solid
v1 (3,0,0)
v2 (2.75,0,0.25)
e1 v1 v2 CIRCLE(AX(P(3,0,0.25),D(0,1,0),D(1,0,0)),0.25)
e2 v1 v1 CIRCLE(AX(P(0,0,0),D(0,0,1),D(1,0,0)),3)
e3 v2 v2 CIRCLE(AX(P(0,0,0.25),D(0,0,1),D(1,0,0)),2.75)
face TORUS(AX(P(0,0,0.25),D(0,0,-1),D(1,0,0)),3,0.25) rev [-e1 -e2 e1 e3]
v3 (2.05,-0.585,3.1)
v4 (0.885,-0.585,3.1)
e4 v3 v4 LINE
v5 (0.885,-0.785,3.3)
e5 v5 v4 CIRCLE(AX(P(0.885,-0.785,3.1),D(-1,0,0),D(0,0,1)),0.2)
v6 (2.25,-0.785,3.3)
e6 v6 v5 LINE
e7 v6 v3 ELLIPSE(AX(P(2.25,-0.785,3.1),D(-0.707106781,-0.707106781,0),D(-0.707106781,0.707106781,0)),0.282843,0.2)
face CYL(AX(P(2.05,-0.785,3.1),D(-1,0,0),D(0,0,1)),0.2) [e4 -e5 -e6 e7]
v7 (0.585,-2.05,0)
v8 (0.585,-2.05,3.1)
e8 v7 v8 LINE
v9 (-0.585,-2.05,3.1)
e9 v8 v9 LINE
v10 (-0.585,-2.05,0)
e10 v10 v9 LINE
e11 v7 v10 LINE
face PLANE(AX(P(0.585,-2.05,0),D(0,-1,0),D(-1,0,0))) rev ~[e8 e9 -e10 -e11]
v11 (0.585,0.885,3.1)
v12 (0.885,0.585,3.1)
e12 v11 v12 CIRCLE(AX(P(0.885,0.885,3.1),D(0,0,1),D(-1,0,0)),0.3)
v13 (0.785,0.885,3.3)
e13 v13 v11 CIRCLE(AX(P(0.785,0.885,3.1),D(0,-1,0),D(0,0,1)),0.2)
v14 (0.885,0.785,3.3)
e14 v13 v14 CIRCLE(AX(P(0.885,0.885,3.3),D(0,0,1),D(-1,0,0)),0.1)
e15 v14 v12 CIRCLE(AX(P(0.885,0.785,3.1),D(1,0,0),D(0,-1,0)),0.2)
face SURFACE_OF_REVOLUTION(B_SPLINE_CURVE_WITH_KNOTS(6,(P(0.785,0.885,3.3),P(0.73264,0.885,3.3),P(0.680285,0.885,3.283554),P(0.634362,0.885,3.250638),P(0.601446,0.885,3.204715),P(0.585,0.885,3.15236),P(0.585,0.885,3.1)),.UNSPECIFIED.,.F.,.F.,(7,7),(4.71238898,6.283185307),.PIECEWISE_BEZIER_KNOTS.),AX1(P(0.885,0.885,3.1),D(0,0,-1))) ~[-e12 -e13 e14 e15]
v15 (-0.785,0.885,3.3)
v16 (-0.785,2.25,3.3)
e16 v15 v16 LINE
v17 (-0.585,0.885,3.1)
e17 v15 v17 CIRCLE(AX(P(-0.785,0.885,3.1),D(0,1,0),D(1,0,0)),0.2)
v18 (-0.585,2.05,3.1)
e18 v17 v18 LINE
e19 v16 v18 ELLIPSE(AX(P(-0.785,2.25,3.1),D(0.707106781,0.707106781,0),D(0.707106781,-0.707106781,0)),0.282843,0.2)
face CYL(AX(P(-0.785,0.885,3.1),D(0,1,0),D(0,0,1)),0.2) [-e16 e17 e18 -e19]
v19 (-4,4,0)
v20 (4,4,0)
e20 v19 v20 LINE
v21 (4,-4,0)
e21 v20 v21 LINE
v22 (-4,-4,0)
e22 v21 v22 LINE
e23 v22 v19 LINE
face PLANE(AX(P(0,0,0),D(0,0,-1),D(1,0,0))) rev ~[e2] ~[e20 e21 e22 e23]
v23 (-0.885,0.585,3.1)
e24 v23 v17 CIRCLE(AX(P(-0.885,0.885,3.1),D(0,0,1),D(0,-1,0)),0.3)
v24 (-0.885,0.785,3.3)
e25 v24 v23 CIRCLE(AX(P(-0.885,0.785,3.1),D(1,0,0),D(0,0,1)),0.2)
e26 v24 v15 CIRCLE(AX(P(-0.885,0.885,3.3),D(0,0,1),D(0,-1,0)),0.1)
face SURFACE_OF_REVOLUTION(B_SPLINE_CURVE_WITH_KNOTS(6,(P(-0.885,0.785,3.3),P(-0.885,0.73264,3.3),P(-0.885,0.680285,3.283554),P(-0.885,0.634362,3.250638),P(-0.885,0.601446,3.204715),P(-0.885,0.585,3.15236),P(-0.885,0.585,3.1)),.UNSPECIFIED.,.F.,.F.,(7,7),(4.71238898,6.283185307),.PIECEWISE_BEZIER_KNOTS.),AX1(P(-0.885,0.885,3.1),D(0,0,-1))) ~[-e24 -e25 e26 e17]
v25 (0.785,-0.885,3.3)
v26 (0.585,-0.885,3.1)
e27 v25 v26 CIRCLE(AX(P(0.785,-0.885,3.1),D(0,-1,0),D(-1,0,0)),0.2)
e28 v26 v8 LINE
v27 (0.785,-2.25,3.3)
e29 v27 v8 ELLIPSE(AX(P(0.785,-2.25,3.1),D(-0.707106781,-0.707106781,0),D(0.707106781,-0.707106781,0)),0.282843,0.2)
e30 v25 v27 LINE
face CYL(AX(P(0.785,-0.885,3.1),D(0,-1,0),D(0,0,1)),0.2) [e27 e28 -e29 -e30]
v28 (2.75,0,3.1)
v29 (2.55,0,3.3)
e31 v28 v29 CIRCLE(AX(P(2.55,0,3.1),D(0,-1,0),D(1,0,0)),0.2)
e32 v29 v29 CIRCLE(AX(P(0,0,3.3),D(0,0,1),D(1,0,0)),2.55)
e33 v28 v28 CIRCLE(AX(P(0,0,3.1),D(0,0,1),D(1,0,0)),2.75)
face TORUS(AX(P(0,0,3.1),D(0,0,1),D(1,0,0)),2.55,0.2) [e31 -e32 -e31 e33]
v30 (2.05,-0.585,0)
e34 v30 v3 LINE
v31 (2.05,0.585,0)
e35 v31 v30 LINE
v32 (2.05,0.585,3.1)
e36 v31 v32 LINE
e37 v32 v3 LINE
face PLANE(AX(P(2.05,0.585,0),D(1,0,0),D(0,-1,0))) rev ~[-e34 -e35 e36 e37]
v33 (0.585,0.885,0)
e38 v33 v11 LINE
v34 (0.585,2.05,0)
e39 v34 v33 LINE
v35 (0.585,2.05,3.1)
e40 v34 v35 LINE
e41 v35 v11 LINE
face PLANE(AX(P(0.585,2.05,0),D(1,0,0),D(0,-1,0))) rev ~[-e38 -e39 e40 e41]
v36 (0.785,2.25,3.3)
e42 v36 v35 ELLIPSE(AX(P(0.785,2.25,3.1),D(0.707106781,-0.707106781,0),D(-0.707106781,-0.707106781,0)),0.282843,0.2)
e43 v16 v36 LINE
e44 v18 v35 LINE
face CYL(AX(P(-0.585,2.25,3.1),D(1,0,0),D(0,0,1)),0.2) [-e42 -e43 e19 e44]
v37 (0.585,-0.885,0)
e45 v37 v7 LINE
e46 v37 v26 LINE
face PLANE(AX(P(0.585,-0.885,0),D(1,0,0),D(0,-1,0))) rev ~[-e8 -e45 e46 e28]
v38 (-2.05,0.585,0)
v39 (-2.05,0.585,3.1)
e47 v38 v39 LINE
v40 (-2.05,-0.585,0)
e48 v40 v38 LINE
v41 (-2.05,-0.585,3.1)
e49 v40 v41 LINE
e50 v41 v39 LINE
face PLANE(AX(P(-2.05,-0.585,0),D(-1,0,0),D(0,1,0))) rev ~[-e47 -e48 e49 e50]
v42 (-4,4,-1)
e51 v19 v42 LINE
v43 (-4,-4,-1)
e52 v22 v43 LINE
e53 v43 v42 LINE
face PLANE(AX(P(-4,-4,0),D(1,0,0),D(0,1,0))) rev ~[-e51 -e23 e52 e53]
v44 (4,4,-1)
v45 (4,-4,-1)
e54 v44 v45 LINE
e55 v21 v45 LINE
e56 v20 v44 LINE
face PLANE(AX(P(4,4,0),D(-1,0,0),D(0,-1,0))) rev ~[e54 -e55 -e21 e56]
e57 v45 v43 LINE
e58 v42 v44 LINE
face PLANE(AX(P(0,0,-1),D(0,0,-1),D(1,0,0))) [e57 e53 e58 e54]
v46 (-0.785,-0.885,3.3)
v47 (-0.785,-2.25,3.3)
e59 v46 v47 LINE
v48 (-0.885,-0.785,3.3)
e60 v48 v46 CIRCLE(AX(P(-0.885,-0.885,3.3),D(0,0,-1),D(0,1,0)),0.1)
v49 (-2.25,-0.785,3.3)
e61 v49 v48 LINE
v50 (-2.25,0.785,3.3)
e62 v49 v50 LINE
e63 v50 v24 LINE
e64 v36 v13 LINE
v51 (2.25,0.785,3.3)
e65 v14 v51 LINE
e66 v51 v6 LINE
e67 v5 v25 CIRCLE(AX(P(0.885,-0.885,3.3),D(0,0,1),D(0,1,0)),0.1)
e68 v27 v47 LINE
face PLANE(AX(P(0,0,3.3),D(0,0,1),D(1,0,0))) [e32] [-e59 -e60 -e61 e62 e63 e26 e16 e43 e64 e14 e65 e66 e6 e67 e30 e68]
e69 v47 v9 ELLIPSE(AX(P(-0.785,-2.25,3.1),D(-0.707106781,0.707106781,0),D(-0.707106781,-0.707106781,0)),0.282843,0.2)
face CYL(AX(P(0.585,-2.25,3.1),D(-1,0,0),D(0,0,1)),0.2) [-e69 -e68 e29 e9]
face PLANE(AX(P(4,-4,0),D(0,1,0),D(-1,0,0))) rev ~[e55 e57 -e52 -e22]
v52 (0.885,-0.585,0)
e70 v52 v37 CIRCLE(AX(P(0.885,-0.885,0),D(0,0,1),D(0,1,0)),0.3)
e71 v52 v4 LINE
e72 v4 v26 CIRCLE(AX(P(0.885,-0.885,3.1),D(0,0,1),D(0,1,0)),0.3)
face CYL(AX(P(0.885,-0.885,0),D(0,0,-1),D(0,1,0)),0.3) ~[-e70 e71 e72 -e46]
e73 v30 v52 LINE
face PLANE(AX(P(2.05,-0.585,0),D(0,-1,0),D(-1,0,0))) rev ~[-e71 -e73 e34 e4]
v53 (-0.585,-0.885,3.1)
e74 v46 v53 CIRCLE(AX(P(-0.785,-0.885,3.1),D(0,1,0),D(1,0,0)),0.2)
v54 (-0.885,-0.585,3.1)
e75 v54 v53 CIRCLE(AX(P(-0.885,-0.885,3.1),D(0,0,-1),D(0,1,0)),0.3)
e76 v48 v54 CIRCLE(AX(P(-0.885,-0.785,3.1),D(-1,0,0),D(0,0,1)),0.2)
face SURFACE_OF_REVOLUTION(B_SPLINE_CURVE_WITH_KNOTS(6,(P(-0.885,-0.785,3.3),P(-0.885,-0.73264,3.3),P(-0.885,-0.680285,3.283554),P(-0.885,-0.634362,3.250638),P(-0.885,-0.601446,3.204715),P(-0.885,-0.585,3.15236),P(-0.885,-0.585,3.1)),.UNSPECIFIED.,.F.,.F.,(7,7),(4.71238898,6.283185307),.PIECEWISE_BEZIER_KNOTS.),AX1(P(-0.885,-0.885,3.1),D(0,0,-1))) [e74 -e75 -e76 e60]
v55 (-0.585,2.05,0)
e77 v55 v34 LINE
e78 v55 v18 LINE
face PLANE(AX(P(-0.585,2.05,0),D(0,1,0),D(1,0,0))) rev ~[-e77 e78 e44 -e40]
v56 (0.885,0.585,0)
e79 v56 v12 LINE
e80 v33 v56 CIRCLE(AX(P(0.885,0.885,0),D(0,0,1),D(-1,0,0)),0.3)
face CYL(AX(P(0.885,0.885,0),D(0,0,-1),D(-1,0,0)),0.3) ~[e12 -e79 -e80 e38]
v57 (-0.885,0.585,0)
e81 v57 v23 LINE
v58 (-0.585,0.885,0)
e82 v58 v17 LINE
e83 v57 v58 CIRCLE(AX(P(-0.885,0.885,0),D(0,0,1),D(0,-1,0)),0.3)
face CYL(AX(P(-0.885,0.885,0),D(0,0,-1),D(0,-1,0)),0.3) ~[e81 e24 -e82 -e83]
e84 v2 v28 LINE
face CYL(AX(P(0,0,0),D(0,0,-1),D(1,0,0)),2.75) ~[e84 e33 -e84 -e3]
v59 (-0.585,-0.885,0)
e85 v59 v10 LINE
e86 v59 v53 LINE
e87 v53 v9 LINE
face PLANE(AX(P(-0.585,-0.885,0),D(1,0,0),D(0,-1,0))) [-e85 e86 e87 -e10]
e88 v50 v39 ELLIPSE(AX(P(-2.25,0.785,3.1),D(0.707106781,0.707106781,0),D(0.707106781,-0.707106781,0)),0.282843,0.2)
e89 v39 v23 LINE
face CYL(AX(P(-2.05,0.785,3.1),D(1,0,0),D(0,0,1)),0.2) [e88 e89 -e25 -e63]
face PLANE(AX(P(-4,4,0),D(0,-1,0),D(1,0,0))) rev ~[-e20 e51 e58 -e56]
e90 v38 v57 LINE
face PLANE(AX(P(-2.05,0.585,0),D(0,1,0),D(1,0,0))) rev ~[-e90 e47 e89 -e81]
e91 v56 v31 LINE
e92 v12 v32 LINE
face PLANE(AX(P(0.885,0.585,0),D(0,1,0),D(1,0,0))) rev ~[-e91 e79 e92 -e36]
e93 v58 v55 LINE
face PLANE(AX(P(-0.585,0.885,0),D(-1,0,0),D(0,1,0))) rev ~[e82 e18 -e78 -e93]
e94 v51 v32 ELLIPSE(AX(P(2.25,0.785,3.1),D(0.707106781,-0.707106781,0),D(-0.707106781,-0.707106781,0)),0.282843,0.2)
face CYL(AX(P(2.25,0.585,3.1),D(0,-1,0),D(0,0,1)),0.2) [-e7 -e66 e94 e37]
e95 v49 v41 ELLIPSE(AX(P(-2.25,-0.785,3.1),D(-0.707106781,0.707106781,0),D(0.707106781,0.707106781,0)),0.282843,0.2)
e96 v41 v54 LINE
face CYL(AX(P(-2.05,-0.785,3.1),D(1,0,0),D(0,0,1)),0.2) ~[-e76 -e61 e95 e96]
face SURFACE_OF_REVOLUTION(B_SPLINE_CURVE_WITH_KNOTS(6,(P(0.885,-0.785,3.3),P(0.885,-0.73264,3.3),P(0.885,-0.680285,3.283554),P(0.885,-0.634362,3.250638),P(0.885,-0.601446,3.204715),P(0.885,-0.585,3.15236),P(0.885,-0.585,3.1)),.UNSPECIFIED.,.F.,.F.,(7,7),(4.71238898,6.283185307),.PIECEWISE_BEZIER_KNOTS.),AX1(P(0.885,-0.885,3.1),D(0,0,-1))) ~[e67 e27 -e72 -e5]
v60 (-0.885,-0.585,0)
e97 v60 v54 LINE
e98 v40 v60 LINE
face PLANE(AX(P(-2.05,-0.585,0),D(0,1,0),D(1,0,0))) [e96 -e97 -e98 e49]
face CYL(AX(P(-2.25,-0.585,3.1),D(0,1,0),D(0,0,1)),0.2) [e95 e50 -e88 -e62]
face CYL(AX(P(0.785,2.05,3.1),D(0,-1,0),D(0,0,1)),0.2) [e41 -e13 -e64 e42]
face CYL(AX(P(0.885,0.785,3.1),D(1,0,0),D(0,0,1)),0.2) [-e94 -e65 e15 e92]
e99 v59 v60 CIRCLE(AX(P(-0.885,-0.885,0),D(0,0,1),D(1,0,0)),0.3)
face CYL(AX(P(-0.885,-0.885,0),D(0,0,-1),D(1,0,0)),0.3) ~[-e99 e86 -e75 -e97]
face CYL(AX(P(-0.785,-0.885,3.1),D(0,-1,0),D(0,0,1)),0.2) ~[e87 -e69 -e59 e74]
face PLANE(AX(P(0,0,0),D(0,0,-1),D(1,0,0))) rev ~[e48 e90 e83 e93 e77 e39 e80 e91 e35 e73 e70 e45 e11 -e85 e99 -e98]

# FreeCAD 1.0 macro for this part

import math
import FreeCAD as App
import Part
import Sketcher

V = App.Vector


def edges_at(feature, points):
    """Names of the edges that pass closest to the given points."""
    edges = feature.Shape.Edges
    near = lambda p: min(range(len(edges)), key=lambda i: edges[i].distToShape(Part.Vertex(*p))[0])
    return sorted({f"Edge{near(p) + 1}" for p in points})

doc = App.newDocument("Part")
body = doc.addObject("PartDesign::Body", "Body")

sketch1 = body.newObject("Sketcher::SketchObject", "Sketch")
sketch1.AttachmentSupport = (doc.getObject("XY_Plane"), [""])
sketch1.MapMode = "FlatFace"
sketch1.addGeometry([
    Part.Circle(V(0, 0, 0), V(0, 0, 1), 2.75),
    Part.LineSegment(V(0.58, -0.89, 0), V(0.58, -2.05, 0)),
    Part.LineSegment(V(0.58, -2.05, 0), V(-0.58, -2.05, 0)),
    Part.LineSegment(V(-0.58, -2.05, 0), V(-0.58, -0.89, 0)),
    Part.ArcOfCircle(Part.Circle(V(-0.89, -0.89, 0), V(0, 0, 1), 0.3), math.radians(0), math.radians(90)),
    Part.LineSegment(V(-0.89, -0.58, 0), V(-2.05, -0.58, 0)),
    Part.LineSegment(V(-2.05, -0.58, 0), V(-2.05, 0.58, 0)),
    Part.LineSegment(V(-2.05, 0.58, 0), V(-0.89, 0.58, 0)),
    Part.ArcOfCircle(Part.Circle(V(-0.89, 0.89, 0), V(0, 0, 1), 0.3), math.radians(-90), math.radians(0)),
    Part.LineSegment(V(-0.58, 0.89, 0), V(-0.58, 2.05, 0)),
    Part.LineSegment(V(-0.58, 2.05, 0), V(0.58, 2.05, 0)),
    Part.LineSegment(V(0.58, 2.05, 0), V(0.58, 0.89, 0)),
    Part.ArcOfCircle(Part.Circle(V(0.89, 0.89, 0), V(0, 0, 1), 0.3), math.radians(180), math.radians(270)),
    Part.LineSegment(V(0.89, 0.58, 0), V(2.05, 0.58, 0)),
    Part.LineSegment(V(2.05, 0.58, 0), V(2.05, -0.58, 0)),
    Part.LineSegment(V(2.05, -0.58, 0), V(0.89, -0.58, 0)),
    Part.ArcOfCircle(Part.Circle(V(0.89, -0.89, 0), V(0, 0, 1), 0.3), math.radians(90), math.radians(180)),
], False)
sketch1.addConstraint([
    Sketcher.Constraint("Coincident", 1, 2, 2, 1),
    Sketcher.Constraint("Coincident", 2, 2, 3, 1),
    Sketcher.Constraint("Tangent", 3, 2, 4, 1),
    Sketcher.Constraint("Tangent", 4, 2, 5, 1),
    Sketcher.Constraint("Coincident", 5, 2, 6, 1),
    Sketcher.Constraint("Coincident", 6, 2, 7, 1),
    Sketcher.Constraint("Tangent", 7, 2, 8, 1),
    Sketcher.Constraint("Tangent", 8, 2, 9, 1),
    Sketcher.Constraint("Coincident", 9, 2, 10, 1),
    Sketcher.Constraint("Coincident", 10, 2, 11, 1),
    Sketcher.Constraint("Tangent", 11, 2, 12, 1),
    Sketcher.Constraint("Tangent", 12, 2, 13, 1),
    Sketcher.Constraint("Coincident", 13, 2, 14, 1),
    Sketcher.Constraint("Coincident", 14, 2, 15, 1),
    Sketcher.Constraint("Tangent", 15, 2, 16, 1),
    Sketcher.Constraint("Tangent", 16, 2, 1, 1),
    Sketcher.Constraint("Vertical", 1),
    Sketcher.Constraint("Horizontal", 2),
    Sketcher.Constraint("Vertical", 3),
    Sketcher.Constraint("Horizontal", 5),
    Sketcher.Constraint("Vertical", 6),
    Sketcher.Constraint("Horizontal", 7),
    Sketcher.Constraint("Vertical", 9),
    Sketcher.Constraint("Horizontal", 10),
    Sketcher.Constraint("Vertical", 11),
    Sketcher.Constraint("Horizontal", 13),
    Sketcher.Constraint("Vertical", 14),
    Sketcher.Constraint("Horizontal", 15),
    Sketcher.Constraint("Coincident", 0, 3, -1, 1),
    Sketcher.Constraint("Equal", 4, 8),
    Sketcher.Constraint("Equal", 8, 12),
    Sketcher.Constraint("Equal", 12, 16),
    Sketcher.Constraint("Symmetric", 4, 3, 12, 3, -1, 1),
    Sketcher.Constraint("Symmetric", 8, 3, 16, 3, -1, 1),
    Sketcher.Constraint("Symmetric", 8, 3, 12, 3, -2),
    Sketcher.Constraint("Equal", 7, 13),
    Sketcher.Constraint("Equal", 15, 1),
    Sketcher.Constraint("Equal", 10, 6),
    Sketcher.Constraint("Equal", 3, 9),
    Sketcher.Constraint("Diameter", 0, 5.5),
    Sketcher.Constraint("Radius", 4, 0.3),
    Sketcher.Constraint("DistanceX", 2, 2, 2, 1, 1.17),
    Sketcher.Constraint("DistanceX", 5, 2, 5, 1, 1.165),
])
pad1 = body.newObject("PartDesign::Pad", "Pad")
pad1.Profile = sketch1
pad1.Length = 3.3

sketch2 = body.newObject("Sketcher::SketchObject", "Sketch001")
sketch2.AttachmentSupport = (doc.getObject("XY_Plane"), [""])
sketch2.MapMode = "FlatFace"
sketch2.addGeometry([
    Part.LineSegment(V(4, 4, 0), V(4, -4, 0)),
    Part.LineSegment(V(4, -4, 0), V(-4, -4, 0)),
    Part.LineSegment(V(-4, -4, 0), V(-4, 4, 0)),
    Part.LineSegment(V(-4, 4, 0), V(4, 4, 0)),
], False)
sketch2.addConstraint([
    Sketcher.Constraint("Coincident", 0, 2, 1, 1),
    Sketcher.Constraint("Coincident", 1, 2, 2, 1),
    Sketcher.Constraint("Coincident", 2, 2, 3, 1),
    Sketcher.Constraint("Coincident", 3, 2, 0, 1),
    Sketcher.Constraint("Vertical", 0),
    Sketcher.Constraint("Horizontal", 1),
    Sketcher.Constraint("Vertical", 2),
    Sketcher.Constraint("Horizontal", 3),
    Sketcher.Constraint("Symmetric", 0, 2, 2, 2, -1, 1),
    Sketcher.Constraint("Equal", 3, 0),
    Sketcher.Constraint("DistanceX", 1, 2, 1, 1, 8.0),
])
pad2 = body.newObject("PartDesign::Pad", "Pad001")
pad2.Profile = sketch2
pad2.Length = 1
pad2.Reversed = True
doc.recompute()

fillet = body.newObject("PartDesign::Fillet", "Fillet")
fillet.Base = (pad2, edges_at(pad2, [(-2.564, -0.994, 0)]))
fillet.Radius = 0.25
doc.recompute()

fillet2 = body.newObject("PartDesign::Fillet", "Fillet001")
fillet2.Base = (fillet, edges_at(fillet, [(-2.564, -0.994, 3.3)]))
fillet2.Radius = 0.2
doc.recompute()

fillet3 = body.newObject("PartDesign::Fillet", "Fillet002")
fillet3.Base = (fillet2, edges_at(fillet2, [
    (1.468, -0.585, 3.3),
    (0.673, -0.673, 3.3),
    (0.585, -1.468, 3.3),
    (2.05, 0, 3.3),
    (0.585, 1.468, 3.3),
    (0.673, 0.673, 3.3),
    (1.468, 0.585, 3.3),
    (0, 2.05, 3.3),
    (-1.468, 0.585, 3.3),
    (-0.673, 0.673, 3.3),
    (-0.585, 1.468, 3.3),
    (-2.05, 0, 3.3),
    (-0.585, -1.468, 3.3),
    (-0.673, -0.673, 3.3),
    (-1.468, -0.585, 3.3),
    (0, -2.05, 3.3),
]))
fillet3.Radius = 0.2

doc.recompute()
